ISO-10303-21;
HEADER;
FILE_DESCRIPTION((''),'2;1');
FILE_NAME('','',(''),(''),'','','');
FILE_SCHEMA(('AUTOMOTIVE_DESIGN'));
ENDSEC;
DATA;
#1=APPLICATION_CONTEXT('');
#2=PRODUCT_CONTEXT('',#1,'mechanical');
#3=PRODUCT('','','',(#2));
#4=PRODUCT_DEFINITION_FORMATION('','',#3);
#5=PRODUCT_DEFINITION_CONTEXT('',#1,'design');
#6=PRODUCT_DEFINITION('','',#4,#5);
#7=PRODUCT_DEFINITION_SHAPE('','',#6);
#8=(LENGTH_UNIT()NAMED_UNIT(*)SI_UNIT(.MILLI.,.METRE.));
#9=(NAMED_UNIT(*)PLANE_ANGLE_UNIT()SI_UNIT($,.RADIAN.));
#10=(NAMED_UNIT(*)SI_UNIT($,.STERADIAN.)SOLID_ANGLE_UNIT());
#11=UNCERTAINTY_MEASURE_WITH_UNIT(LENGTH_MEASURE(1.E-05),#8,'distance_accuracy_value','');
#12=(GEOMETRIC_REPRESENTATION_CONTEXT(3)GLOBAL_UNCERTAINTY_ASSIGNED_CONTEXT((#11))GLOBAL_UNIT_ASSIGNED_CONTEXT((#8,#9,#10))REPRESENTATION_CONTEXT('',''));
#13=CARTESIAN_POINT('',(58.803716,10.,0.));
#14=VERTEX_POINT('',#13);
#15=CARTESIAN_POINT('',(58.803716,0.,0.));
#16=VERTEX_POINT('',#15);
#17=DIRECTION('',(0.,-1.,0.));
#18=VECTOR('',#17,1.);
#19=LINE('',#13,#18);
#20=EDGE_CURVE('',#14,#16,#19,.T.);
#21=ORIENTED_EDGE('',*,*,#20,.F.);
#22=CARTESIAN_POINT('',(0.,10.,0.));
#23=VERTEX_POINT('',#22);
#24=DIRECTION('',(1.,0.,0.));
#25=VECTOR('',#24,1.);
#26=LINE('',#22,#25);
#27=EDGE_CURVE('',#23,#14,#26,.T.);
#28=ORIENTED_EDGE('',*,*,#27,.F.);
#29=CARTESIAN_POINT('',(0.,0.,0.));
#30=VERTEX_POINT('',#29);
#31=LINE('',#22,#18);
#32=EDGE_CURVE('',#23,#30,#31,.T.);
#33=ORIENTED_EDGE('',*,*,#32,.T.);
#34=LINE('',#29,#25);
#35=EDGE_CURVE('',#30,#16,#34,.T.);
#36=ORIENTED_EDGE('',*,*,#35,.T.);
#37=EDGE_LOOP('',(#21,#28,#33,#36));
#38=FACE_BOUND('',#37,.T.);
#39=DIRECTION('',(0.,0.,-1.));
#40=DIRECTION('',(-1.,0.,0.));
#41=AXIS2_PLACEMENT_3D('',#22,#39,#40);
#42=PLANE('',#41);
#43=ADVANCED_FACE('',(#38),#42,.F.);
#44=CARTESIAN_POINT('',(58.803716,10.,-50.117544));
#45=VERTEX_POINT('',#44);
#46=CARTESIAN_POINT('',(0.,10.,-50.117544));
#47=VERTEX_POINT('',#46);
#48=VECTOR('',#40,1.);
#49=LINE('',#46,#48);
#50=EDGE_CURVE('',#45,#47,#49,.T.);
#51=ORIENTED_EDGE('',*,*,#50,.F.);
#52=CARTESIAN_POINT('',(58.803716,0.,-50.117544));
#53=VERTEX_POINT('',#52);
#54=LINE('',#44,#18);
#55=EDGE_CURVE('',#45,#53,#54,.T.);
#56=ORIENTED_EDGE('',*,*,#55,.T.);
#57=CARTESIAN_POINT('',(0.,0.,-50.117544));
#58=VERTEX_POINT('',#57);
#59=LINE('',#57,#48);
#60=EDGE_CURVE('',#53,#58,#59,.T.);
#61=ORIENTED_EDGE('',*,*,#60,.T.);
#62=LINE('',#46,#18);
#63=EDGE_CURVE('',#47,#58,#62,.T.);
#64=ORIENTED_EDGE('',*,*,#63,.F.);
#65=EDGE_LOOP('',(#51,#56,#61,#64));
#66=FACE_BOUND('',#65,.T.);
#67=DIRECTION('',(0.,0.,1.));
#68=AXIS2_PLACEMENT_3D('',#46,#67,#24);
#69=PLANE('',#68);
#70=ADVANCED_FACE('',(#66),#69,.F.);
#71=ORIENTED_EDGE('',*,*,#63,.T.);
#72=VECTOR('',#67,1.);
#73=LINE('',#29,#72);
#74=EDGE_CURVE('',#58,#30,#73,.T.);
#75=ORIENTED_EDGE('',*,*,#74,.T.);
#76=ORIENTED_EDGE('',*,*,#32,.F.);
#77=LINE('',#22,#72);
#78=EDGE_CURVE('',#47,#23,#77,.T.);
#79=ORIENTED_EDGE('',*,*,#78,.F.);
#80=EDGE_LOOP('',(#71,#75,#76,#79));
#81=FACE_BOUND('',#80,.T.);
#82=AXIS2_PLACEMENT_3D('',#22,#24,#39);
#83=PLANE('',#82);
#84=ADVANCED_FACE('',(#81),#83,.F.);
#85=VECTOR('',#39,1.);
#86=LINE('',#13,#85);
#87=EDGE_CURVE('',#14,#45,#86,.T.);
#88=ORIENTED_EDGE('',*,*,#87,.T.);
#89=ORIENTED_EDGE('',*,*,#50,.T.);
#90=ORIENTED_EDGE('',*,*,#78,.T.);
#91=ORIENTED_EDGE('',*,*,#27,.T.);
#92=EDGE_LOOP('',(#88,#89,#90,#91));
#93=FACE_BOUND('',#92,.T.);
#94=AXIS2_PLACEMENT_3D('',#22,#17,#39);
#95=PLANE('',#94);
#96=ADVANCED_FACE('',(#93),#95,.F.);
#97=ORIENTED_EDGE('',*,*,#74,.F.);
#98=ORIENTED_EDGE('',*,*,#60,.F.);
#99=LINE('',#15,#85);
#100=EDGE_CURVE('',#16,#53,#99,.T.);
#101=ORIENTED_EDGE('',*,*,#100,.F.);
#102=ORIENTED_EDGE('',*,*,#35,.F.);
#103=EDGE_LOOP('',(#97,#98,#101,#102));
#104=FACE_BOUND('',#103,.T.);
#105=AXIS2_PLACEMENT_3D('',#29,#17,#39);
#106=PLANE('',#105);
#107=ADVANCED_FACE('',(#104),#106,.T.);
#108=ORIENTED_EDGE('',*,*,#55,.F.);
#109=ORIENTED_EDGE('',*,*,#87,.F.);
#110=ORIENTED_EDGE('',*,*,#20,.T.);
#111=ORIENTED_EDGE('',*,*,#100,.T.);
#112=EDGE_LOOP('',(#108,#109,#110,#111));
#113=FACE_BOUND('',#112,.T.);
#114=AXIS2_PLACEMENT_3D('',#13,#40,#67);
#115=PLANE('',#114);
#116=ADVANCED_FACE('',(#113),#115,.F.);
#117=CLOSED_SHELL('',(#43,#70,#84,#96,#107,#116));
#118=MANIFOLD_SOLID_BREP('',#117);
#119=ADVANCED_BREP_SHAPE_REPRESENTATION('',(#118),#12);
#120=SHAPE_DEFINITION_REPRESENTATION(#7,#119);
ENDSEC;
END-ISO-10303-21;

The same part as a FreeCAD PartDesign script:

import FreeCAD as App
import Part
import Sketcher


def add_polygon(sketch, points):
    """Adds a closed chain of lines whose ends are joined by coincident constraints."""
    first, n = sketch.GeometryCount, len(points)
    for a, b in zip(points, points[1:] + points[:1]):
        sketch.addGeometry(Part.LineSegment(App.Vector(*a, 0), App.Vector(*b, 0)), False)
    for i in range(n):
        sketch.addConstraint(Sketcher.Constraint("Coincident", first + i, 2, first + (i + 1) % n, 1))

doc = App.newDocument("Part")
body = doc.addObject("PartDesign::Body", "Body")

sketch1 = body.newObject("Sketcher::SketchObject", "Sketch")
sketch1.AttachmentSupport = (doc.getObject("XZ_Plane"), [""])
sketch1.MapMode = "FlatFace"
add_polygon(sketch1, [(0, -50), (0, 0), (59, 0), (59, -50)])
sketch1.addConstraint(Sketcher.Constraint("Vertical", 0))
sketch1.addConstraint(Sketcher.Constraint("Horizontal", 1))
sketch1.addConstraint(Sketcher.Constraint("Vertical", 2))
sketch1.addConstraint(Sketcher.Constraint("Horizontal", 3))
sketch1.addConstraint(Sketcher.Constraint("Coincident", 0, 2, -1, 1))
sketch1.addConstraint(Sketcher.Constraint("DistanceX", 1, 1, 1, 2, 58.803716))
sketch1.addConstraint(Sketcher.Constraint("DistanceY", 0, 1, 0, 2, 50.117544))
pad1 = body.newObject("PartDesign::Pad", "Pad")
pad1.Profile = sketch1
pad1.Length = 10
pad1.Reversed = True

doc.recompute()
